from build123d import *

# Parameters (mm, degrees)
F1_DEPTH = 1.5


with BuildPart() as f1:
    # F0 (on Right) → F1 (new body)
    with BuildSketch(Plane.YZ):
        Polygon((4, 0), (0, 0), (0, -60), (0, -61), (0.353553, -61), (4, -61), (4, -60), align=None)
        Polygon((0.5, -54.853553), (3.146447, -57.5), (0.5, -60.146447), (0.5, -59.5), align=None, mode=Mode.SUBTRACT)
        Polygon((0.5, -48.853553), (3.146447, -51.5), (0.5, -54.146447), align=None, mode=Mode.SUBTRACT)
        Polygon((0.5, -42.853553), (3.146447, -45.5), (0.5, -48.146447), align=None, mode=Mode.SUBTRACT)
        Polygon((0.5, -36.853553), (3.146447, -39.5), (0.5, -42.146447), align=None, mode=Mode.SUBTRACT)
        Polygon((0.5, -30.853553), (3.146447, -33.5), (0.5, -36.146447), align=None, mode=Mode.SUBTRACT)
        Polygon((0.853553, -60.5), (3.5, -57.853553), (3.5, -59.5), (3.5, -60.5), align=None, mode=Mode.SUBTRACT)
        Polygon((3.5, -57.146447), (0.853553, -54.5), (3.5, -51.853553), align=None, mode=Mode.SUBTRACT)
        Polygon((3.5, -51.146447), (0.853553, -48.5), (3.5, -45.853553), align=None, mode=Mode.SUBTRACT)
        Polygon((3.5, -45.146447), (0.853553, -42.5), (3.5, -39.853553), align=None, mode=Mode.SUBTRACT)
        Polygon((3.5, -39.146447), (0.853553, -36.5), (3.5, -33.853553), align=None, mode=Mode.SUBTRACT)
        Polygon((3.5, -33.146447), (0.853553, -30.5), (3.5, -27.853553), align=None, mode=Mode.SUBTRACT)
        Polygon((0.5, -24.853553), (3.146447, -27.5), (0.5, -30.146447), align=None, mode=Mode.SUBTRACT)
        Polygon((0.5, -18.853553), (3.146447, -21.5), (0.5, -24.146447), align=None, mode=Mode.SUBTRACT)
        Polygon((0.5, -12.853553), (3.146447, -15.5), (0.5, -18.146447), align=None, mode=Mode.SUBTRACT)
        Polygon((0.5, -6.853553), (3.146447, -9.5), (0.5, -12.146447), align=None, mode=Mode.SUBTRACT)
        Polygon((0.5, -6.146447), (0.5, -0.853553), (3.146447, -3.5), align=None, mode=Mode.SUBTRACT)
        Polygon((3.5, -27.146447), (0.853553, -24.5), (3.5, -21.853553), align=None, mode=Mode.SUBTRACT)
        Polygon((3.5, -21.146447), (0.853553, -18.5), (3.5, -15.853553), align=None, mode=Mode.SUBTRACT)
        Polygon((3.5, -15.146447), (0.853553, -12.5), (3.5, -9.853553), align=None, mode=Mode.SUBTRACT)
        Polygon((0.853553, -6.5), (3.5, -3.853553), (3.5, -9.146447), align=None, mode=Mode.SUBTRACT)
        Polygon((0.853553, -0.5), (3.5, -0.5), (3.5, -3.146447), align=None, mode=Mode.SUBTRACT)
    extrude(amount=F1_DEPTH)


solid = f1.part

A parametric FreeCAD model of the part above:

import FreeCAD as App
import Part
import Sketcher
from FreeCAD import Vector

doc = App.newDocument("Part")
body = doc.addObject("PartDesign::Body", "Body")

# Sketch on YZ plane
sketch1 = body.newObject("Sketcher::SketchObject", "Sketch")
sketch1.AttachmentSupport = (doc.getObject("YZ_Plane"), [""])
sketch1.MapMode = "FlatFace"
sketch1.addGeometry(Part.LineSegment(Vector(4, 0, 0), Vector(0, 0, 0)), False)
sketch1.addGeometry(Part.LineSegment(Vector(0, 0, 0), Vector(0, -61, 0)), False)
sketch1.addGeometry(Part.LineSegment(Vector(0, -61, 0), Vector(4, -61, 0)), False)
sketch1.addGeometry(Part.LineSegment(Vector(4, -61, 0), Vector(4, 0, 0)), False)
sketch1.addGeometry(Part.LineSegment(Vector(0.5, -60.146447, 0), Vector(0.5, -54.853553, 0)), False)
sketch1.addGeometry(Part.LineSegment(Vector(0.5, -54.853553, 0), Vector(3.146447, -57.5, 0)), False)
sketch1.addGeometry(Part.LineSegment(Vector(3.146447, -57.5, 0), Vector(0.5, -60.146447, 0)), False)
sketch1.addGeometry(Part.LineSegment(Vector(0.5, -54.146447, 0), Vector(0.5, -48.853553, 0)), False)
sketch1.addGeometry(Part.LineSegment(Vector(0.5, -48.853553, 0), Vector(3.146447, -51.5, 0)), False)
sketch1.addGeometry(Part.LineSegment(Vector(3.146447, -51.5, 0), Vector(0.5, -54.146447, 0)), False)
sketch1.addGeometry(Part.LineSegment(Vector(0.5, -48.146447, 0), Vector(0.5, -42.853553, 0)), False)
sketch1.addGeometry(Part.LineSegment(Vector(0.5, -42.853553, 0), Vector(3.146447, -45.5, 0)), False)
sketch1.addGeometry(Part.LineSegment(Vector(3.146447, -45.5, 0), Vector(0.5, -48.146447, 0)), False)
sketch1.addGeometry(Part.LineSegment(Vector(0.5, -42.146447, 0), Vector(0.5, -36.853553, 0)), False)
sketch1.addGeometry(Part.LineSegment(Vector(0.5, -36.853553, 0), Vector(3.146447, -39.5, 0)), False)
sketch1.addGeometry(Part.LineSegment(Vector(3.146447, -39.5, 0), Vector(0.5, -42.146447, 0)), False)
sketch1.addGeometry(Part.LineSegment(Vector(0.5, -36.146447, 0), Vector(0.5, -30.853553, 0)), False)
sketch1.addGeometry(Part.LineSegment(Vector(0.5, -30.853553, 0), Vector(3.146447, -33.5, 0)), False)
sketch1.addGeometry(Part.LineSegment(Vector(3.146447, -33.5, 0), Vector(0.5, -36.146447, 0)), False)
sketch1.addGeometry(Part.LineSegment(Vector(3.5, -60.5, 0), Vector(0.853553, -60.5, 0)), False)
sketch1.addGeometry(Part.LineSegment(Vector(0.853553, -60.5, 0), Vector(3.5, -57.853553, 0)), False)
sketch1.addGeometry(Part.LineSegment(Vector(3.5, -57.853553, 0), Vector(3.5, -60.5, 0)), False)
sketch1.addGeometry(Part.LineSegment(Vector(3.5, -51.853553, 0), Vector(3.5, -57.146447, 0)), False)
sketch1.addGeometry(Part.LineSegment(Vector(3.5, -57.146447, 0), Vector(0.853553, -54.5, 0)), False)
sketch1.addGeometry(Part.LineSegment(Vector(0.853553, -54.5, 0), Vector(3.5, -51.853553, 0)), False)
sketch1.addGeometry(Part.LineSegment(Vector(3.5, -45.853553, 0), Vector(3.5, -51.146447, 0)), False)
sketch1.addGeometry(Part.LineSegment(Vector(3.5, -51.146447, 0), Vector(0.853553, -48.5, 0)), False)
sketch1.addGeometry(Part.LineSegment(Vector(0.853553, -48.5, 0), Vector(3.5, -45.853553, 0)), False)
sketch1.addGeometry(Part.LineSegment(Vector(3.5, -39.853553, 0), Vector(3.5, -45.146447, 0)), False)
sketch1.addGeometry(Part.LineSegment(Vector(3.5, -45.146447, 0), Vector(0.853553, -42.5, 0)), False)
sketch1.addGeometry(Part.LineSegment(Vector(0.853553, -42.5, 0), Vector(3.5, -39.853553, 0)), False)
sketch1.addGeometry(Part.LineSegment(Vector(3.5, -33.853553, 0), Vector(3.5, -39.146447, 0)), False)
sketch1.addGeometry(Part.LineSegment(Vector(3.5, -39.146447, 0), Vector(0.853553, -36.5, 0)), False)
sketch1.addGeometry(Part.LineSegment(Vector(0.853553, -36.5, 0), Vector(3.5, -33.853553, 0)), False)
sketch1.addGeometry(Part.LineSegment(Vector(0.5, -30.146447, 0), Vector(0.5, -24.853553, 0)), False)
sketch1.addGeometry(Part.LineSegment(Vector(0.5, -24.853553, 0), Vector(3.146447, -27.5, 0)), False)
sketch1.addGeometry(Part.LineSegment(Vector(3.146447, -27.5, 0), Vector(0.5, -30.146447, 0)), False)
sketch1.addGeometry(Part.LineSegment(Vector(0.5, -24.146447, 0), Vector(0.5, -18.853553, 0)), False)
sketch1.addGeometry(Part.LineSegment(Vector(0.5, -18.853553, 0), Vector(3.146447, -21.5, 0)), False)
sketch1.addGeometry(Part.LineSegment(Vector(3.146447, -21.5, 0), Vector(0.5, -24.146447, 0)), False)
sketch1.addGeometry(Part.LineSegment(Vector(0.5, -18.146447, 0), Vector(0.5, -12.853553, 0)), False)
sketch1.addGeometry(Part.LineSegment(Vector(0.5, -12.853553, 0), Vector(3.146447, -15.5, 0)), False)
sketch1.addGeometry(Part.LineSegment(Vector(3.146447, -15.5, 0), Vector(0.5, -18.146447, 0)), False)
sketch1.addGeometry(Part.LineSegment(Vector(0.5, -12.146447, 0), Vector(0.5, -6.853553, 0)), False)
sketch1.addGeometry(Part.LineSegment(Vector(0.5, -6.853553, 0), Vector(3.146447, -9.5, 0)), False)
sketch1.addGeometry(Part.LineSegment(Vector(3.146447, -9.5, 0), Vector(0.5, -12.146447, 0)), False)
sketch1.addGeometry(Part.LineSegment(Vector(3.146447, -3.5, 0), Vector(0.5, -6.146447, 0)), False)
sketch1.addGeometry(Part.LineSegment(Vector(0.5, -6.146447, 0), Vector(0.5, -0.853553, 0)), False)
sketch1.addGeometry(Part.LineSegment(Vector(0.5, -0.853553, 0), Vector(3.146447, -3.5, 0)), False)
sketch1.addGeometry(Part.LineSegment(Vector(3.5, -27.853553, 0), Vector(3.5, -33.146447, 0)), False)
sketch1.addGeometry(Part.LineSegment(Vector(3.5, -33.146447, 0), Vector(0.853553, -30.5, 0)), False)
sketch1.addGeometry(Part.LineSegment(Vector(0.853553, -30.5, 0), Vector(3.5, -27.853553, 0)), False)
sketch1.addGeometry(Part.LineSegment(Vector(3.5, -21.853553, 0), Vector(3.5, -27.146447, 0)), False)
sketch1.addGeometry(Part.LineSegment(Vector(3.5, -27.146447, 0), Vector(0.853553, -24.5, 0)), False)
sketch1.addGeometry(Part.LineSegment(Vector(0.853553, -24.5, 0), Vector(3.5, -21.853553, 0)), False)
sketch1.addGeometry(Part.LineSegment(Vector(3.5, -15.853553, 0), Vector(3.5, -21.146447, 0)), False)
sketch1.addGeometry(Part.LineSegment(Vector(3.5, -21.146447, 0), Vector(0.853553, -18.5, 0)), False)
sketch1.addGeometry(Part.LineSegment(Vector(0.853553, -18.5, 0), Vector(3.5, -15.853553, 0)), False)
sketch1.addGeometry(Part.LineSegment(Vector(3.5, -9.853553, 0), Vector(3.5, -15.146447, 0)), False)
sketch1.addGeometry(Part.LineSegment(Vector(3.5, -15.146447, 0), Vector(0.853553, -12.5, 0)), False)
sketch1.addGeometry(Part.LineSegment(Vector(0.853553, -12.5, 0), Vector(3.5, -9.853553, 0)), False)
sketch1.addGeometry(Part.LineSegment(Vector(3.5, -9.146447, 0), Vector(0.853553, -6.5, 0)), False)
sketch1.addGeometry(Part.LineSegment(Vector(0.853553, -6.5, 0), Vector(3.5, -3.853553, 0)), False)
sketch1.addGeometry(Part.LineSegment(Vector(3.5, -3.853553, 0), Vector(3.5, -9.146447, 0)), False)
sketch1.addGeometry(Part.LineSegment(Vector(3.5, -3.146447, 0), Vector(0.853553, -0.5, 0)), False)
sketch1.addGeometry(Part.LineSegment(Vector(0.853553, -0.5, 0), Vector(3.5, -0.5, 0)), False)
sketch1.addGeometry(Part.LineSegment(Vector(3.5, -0.5, 0), Vector(3.5, -3.146447, 0)), False)
sketch1.addConstraint(Sketcher.Constraint("Coincident", 0, 2, 1, 1))
sketch1.addConstraint(Sketcher.Constraint("Coincident", 1, 2, 2, 1))
sketch1.addConstraint(Sketcher.Constraint("Coincident", 2, 2, 3, 1))
sketch1.addConstraint(Sketcher.Constraint("Coincident", 3, 2, 0, 1))
sketch1.addConstraint(Sketcher.Constraint("Coincident", 4, 2, 5, 1))
sketch1.addConstraint(Sketcher.Constraint("Coincident", 5, 2, 6, 1))
sketch1.addConstraint(Sketcher.Constraint("Coincident", 6, 2, 4, 1))
sketch1.addConstraint(Sketcher.Constraint("Coincident", 7, 2, 8, 1))
sketch1.addConstraint(Sketcher.Constraint("Coincident", 8, 2, 9, 1))
sketch1.addConstraint(Sketcher.Constraint("Coincident", 9, 2, 7, 1))
sketch1.addConstraint(Sketcher.Constraint("Coincident", 10, 2, 11, 1))
sketch1.addConstraint(Sketcher.Constraint("Coincident", 11, 2, 12, 1))
sketch1.addConstraint(Sketcher.Constraint("Coincident", 12, 2, 10, 1))
sketch1.addConstraint(Sketcher.Constraint("Coincident", 13, 2, 14, 1))
sketch1.addConstraint(Sketcher.Constraint("Coincident", 14, 2, 15, 1))
sketch1.addConstraint(Sketcher.Constraint("Coincident", 15, 2, 13, 1))
sketch1.addConstraint(Sketcher.Constraint("Coincident", 16, 2, 17, 1))
sketch1.addConstraint(Sketcher.Constraint("Coincident", 17, 2, 18, 1))
sketch1.addConstraint(Sketcher.Constraint("Coincident", 18, 2, 16, 1))
sketch1.addConstraint(Sketcher.Constraint("Coincident", 19, 2, 20, 1))
sketch1.addConstraint(Sketcher.Constraint("Coincident", 20, 2, 21, 1))
sketch1.addConstraint(Sketcher.Constraint("Coincident", 21, 2, 19, 1))
sketch1.addConstraint(Sketcher.Constraint("Coincident", 22, 2, 23, 1))
sketch1.addConstraint(Sketcher.Constraint("Coincident", 23, 2, 24, 1))
sketch1.addConstraint(Sketcher.Constraint("Coincident", 24, 2, 22, 1))
sketch1.addConstraint(Sketcher.Constraint("Coincident", 25, 2, 26, 1))
sketch1.addConstraint(Sketcher.Constraint("Coincident", 26, 2, 27, 1))
sketch1.addConstraint(Sketcher.Constraint("Coincident", 27, 2, 25, 1))
sketch1.addConstraint(Sketcher.Constraint("Coincident", 28, 2, 29, 1))
sketch1.addConstraint(Sketcher.Constraint("Coincident", 29, 2, 30, 1))
sketch1.addConstraint(Sketcher.Constraint("Coincident", 30, 2, 28, 1))
sketch1.addConstraint(Sketcher.Constraint("Coincident", 31, 2, 32, 1))
sketch1.addConstraint(Sketcher.Constraint("Coincident", 32, 2, 33, 1))
sketch1.addConstraint(Sketcher.Constraint("Coincident", 33, 2, 31, 1))
sketch1.addConstraint(Sketcher.Constraint("Coincident", 34, 2, 35, 1))
sketch1.addConstraint(Sketcher.Constraint("Coincident", 35, 2, 36, 1))
sketch1.addConstraint(Sketcher.Constraint("Coincident", 36, 2, 34, 1))
sketch1.addConstraint(Sketcher.Constraint("Coincident", 37, 2, 38, 1))
sketch1.addConstraint(Sketcher.Constraint("Coincident", 38, 2, 39, 1))
sketch1.addConstraint(Sketcher.Constraint("Coincident", 39, 2, 37, 1))
sketch1.addConstraint(Sketcher.Constraint("Coincident", 40, 2, 41, 1))
sketch1.addConstraint(Sketcher.Constraint("Coincident", 41, 2, 42, 1))
sketch1.addConstraint(Sketcher.Constraint("Coincident", 42, 2, 40, 1))
sketch1.addConstraint(Sketcher.Constraint("Coincident", 43, 2, 44, 1))
sketch1.addConstraint(Sketcher.Constraint("Coincident", 44, 2, 45, 1))
sketch1.addConstraint(Sketcher.Constraint("Coincident", 45, 2, 43, 1))
sketch1.addConstraint(Sketcher.Constraint("Coincident", 46, 2, 47, 1))
sketch1.addConstraint(Sketcher.Constraint("Coincident", 47, 2, 48, 1))
sketch1.addConstraint(Sketcher.Constraint("Coincident", 48, 2, 46, 1))
sketch1.addConstraint(Sketcher.Constraint("Coincident", 49, 2, 50, 1))
sketch1.addConstraint(Sketcher.Constraint("Coincident", 50, 2, 51, 1))
sketch1.addConstraint(Sketcher.Constraint("Coincident", 51, 2, 49, 1))
sketch1.addConstraint(Sketcher.Constraint("Coincident", 52, 2, 53, 1))
sketch1.addConstraint(Sketcher.Constraint("Coincident", 53, 2, 54, 1))
sketch1.addConstraint(Sketcher.Constraint("Coincident", 54, 2, 52, 1))
sketch1.addConstraint(Sketcher.Constraint("Coincident", 55, 2, 56, 1))
sketch1.addConstraint(Sketcher.Constraint("Coincident", 56, 2, 57, 1))
sketch1.addConstraint(Sketcher.Constraint("Coincident", 57, 2, 55, 1))
sketch1.addConstraint(Sketcher.Constraint("Coincident", 58, 2, 59, 1))
sketch1.addConstraint(Sketcher.Constraint("Coincident", 59, 2, 60, 1))
sketch1.addConstraint(Sketcher.Constraint("Coincident", 60, 2, 58, 1))
sketch1.addConstraint(Sketcher.Constraint("Coincident", 61, 2, 62, 1))
sketch1.addConstraint(Sketcher.Constraint("Coincident", 62, 2, 63, 1))
sketch1.addConstraint(Sketcher.Constraint("Coincident", 63, 2, 61, 1))
sketch1.addConstraint(Sketcher.Constraint("Coincident", 64, 2, 65, 1))
sketch1.addConstraint(Sketcher.Constraint("Coincident", 65, 2, 66, 1))
sketch1.addConstraint(Sketcher.Constraint("Coincident", 66, 2, 64, 1))
sketch1.addConstraint(Sketcher.Constraint("Horizontal", 0))
sketch1.addConstraint(Sketcher.Constraint("Vertical", 1))
sketch1.addConstraint(Sketcher.Constraint("Horizontal", 2))
sketch1.addConstraint(Sketcher.Constraint("Vertical", 3))
sketch1.addConstraint(Sketcher.Constraint("Vertical", 4))
sketch1.addConstraint(Sketcher.Constraint("Vertical", 7))
sketch1.addConstraint(Sketcher.Constraint("Vertical", 10))
sketch1.addConstraint(Sketcher.Constraint("Vertical", 13))
sketch1.addConstraint(Sketcher.Constraint("Vertical", 16))
sketch1.addConstraint(Sketcher.Constraint("Horizontal", 19))
sketch1.addConstraint(Sketcher.Constraint("Vertical", 21))
sketch1.addConstraint(Sketcher.Constraint("Vertical", 22))
sketch1.addConstraint(Sketcher.Constraint("Vertical", 25))
sketch1.addConstraint(Sketcher.Constraint("Vertical", 28))
sketch1.addConstraint(Sketcher.Constraint("Vertical", 31))
sketch1.addConstraint(Sketcher.Constraint("Vertical", 34))
sketch1.addConstraint(Sketcher.Constraint("Vertical", 37))
sketch1.addConstraint(Sketcher.Constraint("Vertical", 40))
sketch1.addConstraint(Sketcher.Constraint("Vertical", 43))
sketch1.addConstraint(Sketcher.Constraint("Vertical", 47))
sketch1.addConstraint(Sketcher.Constraint("Vertical", 49))
sketch1.addConstraint(Sketcher.Constraint("Vertical", 52))
sketch1.addConstraint(Sketcher.Constraint("Vertical", 55))
sketch1.addConstraint(Sketcher.Constraint("Vertical", 58))
sketch1.addConstraint(Sketcher.Constraint("Vertical", 63))
sketch1.addConstraint(Sketcher.Constraint("Horizontal", 65))
sketch1.addConstraint(Sketcher.Constraint("Vertical", 66))
sketch1.addConstraint(Sketcher.Constraint("Coincident", 0, 2, -1, 1))
sketch1.addConstraint(Sketcher.Constraint("Perpendicular", 5, 6))
sketch1.addConstraint(Sketcher.Constraint("Perpendicular", 6, 8))
sketch1.addConstraint(Sketcher.Constraint("Perpendicular", 8, 9))
sketch1.addConstraint(Sketcher.Constraint("Perpendicular", 9, 11))
sketch1.addConstraint(Sketcher.Constraint("Perpendicular", 11, 12))
sketch1.addConstraint(Sketcher.Constraint("Perpendicular", 12, 14))
sketch1.addConstraint(Sketcher.Constraint("Perpendicular", 14, 15))
sketch1.addConstraint(Sketcher.Constraint("Perpendicular", 15, 17))
sketch1.addConstraint(Sketcher.Constraint("Perpendicular", 17, 18))
sketch1.addConstraint(Sketcher.Constraint("Parallel", 18, 20))
sketch1.addConstraint(Sketcher.Constraint("Perpendicular", 20, 23))
sketch1.addConstraint(Sketcher.Constraint("Perpendicular", 23, 24))
sketch1.addConstraint(Sketcher.Constraint("Perpendicular", 24, 26))
sketch1.addConstraint(Sketcher.Constraint("Perpendicular", 26, 27))
sketch1.addConstraint(Sketcher.Constraint("Perpendicular", 27, 29))
sketch1.addConstraint(Sketcher.Constraint("Perpendicular", 29, 30))
sketch1.addConstraint(Sketcher.Constraint("Perpendicular", 30, 32))
sketch1.addConstraint(Sketcher.Constraint("Perpendicular", 32, 33))
sketch1.addConstraint(Sketcher.Constraint("Perpendicular", 33, 35))
sketch1.addConstraint(Sketcher.Constraint("Perpendicular", 35, 36))
sketch1.addConstraint(Sketcher.Constraint("Perpendicular", 36, 38))
sketch1.addConstraint(Sketcher.Constraint("Perpendicular", 38, 39))
sketch1.addConstraint(Sketcher.Constraint("Perpendicular", 39, 41))
sketch1.addConstraint(Sketcher.Constraint("Perpendicular", 41, 42))
sketch1.addConstraint(Sketcher.Constraint("Perpendicular", 42, 44))
sketch1.addConstraint(Sketcher.Constraint("Perpendicular", 44, 45))
sketch1.addConstraint(Sketcher.Constraint("Parallel", 45, 46))
sketch1.addConstraint(Sketcher.Constraint("Perpendicular", 46, 48))
sketch1.addConstraint(Sketcher.Constraint("Parallel", 48, 50))
sketch1.addConstraint(Sketcher.Constraint("Perpendicular", 50, 51))
sketch1.addConstraint(Sketcher.Constraint("Perpendicular", 51, 53))
sketch1.addConstraint(Sketcher.Constraint("Perpendicular", 53, 54))
sketch1.addConstraint(Sketcher.Constraint("Perpendicular", 54, 56))
sketch1.addConstraint(Sketcher.Constraint("Perpendicular", 56, 57))
sketch1.addConstraint(Sketcher.Constraint("Perpendicular", 57, 59))
sketch1.addConstraint(Sketcher.Constraint("Perpendicular", 59, 60))
sketch1.addConstraint(Sketcher.Constraint("Perpendicular", 60, 61))
sketch1.addConstraint(Sketcher.Constraint("Perpendicular", 61, 62))
sketch1.addConstraint(Sketcher.Constraint("Perpendicular", 62, 64))
sketch1.addConstraint(Sketcher.Constraint("Vertical", 6, 2, 7, 2))
sketch1.addConstraint(Sketcher.Constraint("Vertical", 5, 2, 8, 2))
sketch1.addConstraint(Sketcher.Constraint("Vertical", 9, 2, 10, 2))
sketch1.addConstraint(Sketcher.Constraint("Vertical", 8, 2, 11, 2))
sketch1.addConstraint(Sketcher.Constraint("Vertical", 12, 2, 13, 2))
sketch1.addConstraint(Sketcher.Constraint("Vertical", 11, 2, 14, 2))
sketch1.addConstraint(Sketcher.Constraint("Vertical", 15, 2, 16, 2))
sketch1.addConstraint(Sketcher.Constraint("Vertical", 14, 2, 17, 2))
sketch1.addConstraint(Sketcher.Constraint("Vertical", 21, 2, 22, 2))
sketch1.addConstraint(Sketcher.Constraint("Vertical", 19, 2, 23, 2))
sketch1.addConstraint(Sketcher.Constraint("Vertical", 24, 2, 25, 2))
sketch1.addConstraint(Sketcher.Constraint("Vertical", 23, 2, 26, 2))
sketch1.addConstraint(Sketcher.Constraint("Vertical", 27, 2, 28, 2))
sketch1.addConstraint(Sketcher.Constraint("Vertical", 26, 2, 29, 2))
sketch1.addConstraint(Sketcher.Constraint("Vertical", 30, 2, 31, 2))
sketch1.addConstraint(Sketcher.Constraint("Vertical", 29, 2, 32, 2))
sketch1.addConstraint(Sketcher.Constraint("Vertical", 18, 2, 34, 2))
sketch1.addConstraint(Sketcher.Constraint("Vertical", 17, 2, 35, 2))
sketch1.addConstraint(Sketcher.Constraint("Vertical", 36, 2, 37, 2))
sketch1.addConstraint(Sketcher.Constraint("Vertical", 35, 2, 38, 2))
sketch1.addConstraint(Sketcher.Constraint("Vertical", 39, 2, 40, 2))
sketch1.addConstraint(Sketcher.Constraint("Vertical", 38, 2, 41, 2))
sketch1.addConstraint(Sketcher.Constraint("Vertical", 42, 2, 43, 2))
sketch1.addConstraint(Sketcher.Constraint("Vertical", 41, 2, 44, 2))
sketch1.addConstraint(Sketcher.Constraint("Vertical", 45, 2, 46, 2))
sketch1.addConstraint(Sketcher.Constraint("Vertical", 44, 2, 48, 2))
sketch1.addConstraint(Sketcher.Constraint("Vertical", 33, 2, 49, 2))
sketch1.addConstraint(Sketcher.Constraint("Vertical", 32, 2, 50, 2))
sketch1.addConstraint(Sketcher.Constraint("Vertical", 51, 2, 52, 2))
sketch1.addConstraint(Sketcher.Constraint("Vertical", 50, 2, 53, 2))
sketch1.addConstraint(Sketcher.Constraint("Vertical", 54, 2, 55, 2))
sketch1.addConstraint(Sketcher.Constraint("Vertical", 53, 2, 56, 2))
sketch1.addConstraint(Sketcher.Constraint("Vertical", 57, 2, 58, 2))
sketch1.addConstraint(Sketcher.Constraint("Vertical", 56, 2, 59, 2))
sketch1.addConstraint(Sketcher.Constraint("Vertical", 59, 2, 61, 2))
sketch1.addConstraint(Sketcher.Constraint("Vertical", 60, 2, 62, 2))
sketch1.addConstraint(Sketcher.Constraint("Vertical", 61, 2, 64, 2))
sketch1.addConstraint(Sketcher.Constraint("Vertical", 63, 2, 65, 2))
sketch1.addConstraint(Sketcher.Constraint("Equal", 65, 21))
sketch1.addConstraint(Sketcher.Constraint("Equal", 16, 22))
sketch1.addConstraint(Sketcher.Constraint("DistanceX", 0, 2, 0, 1, 4.0))
sketch1.addConstraint(Sketcher.Constraint("DistanceY", 1, 2, 1, 1, 61.0))
sketch1.addConstraint(Sketcher.Constraint("DistanceX", -1, 1, 4, 2, 0.5))
sketch1.addConstraint(Sketcher.Constraint("DistanceY", 5, 2, -1, 1, 57.5))
sketch1.addConstraint(Sketcher.Constraint("DistanceY", 8, 2, -1, 1, 51.5))
sketch1.addConstraint(Sketcher.Constraint("DistanceY", 11, 2, -1, 1, 45.5))
sketch1.addConstraint(Sketcher.Constraint("DistanceY", 14, 2, -1, 1, 39.5))
sketch1.addConstraint(Sketcher.Constraint("DistanceY", 17, 2, -1, 1, 33.5))
sketch1.addConstraint(Sketcher.Constraint("DistanceY", 19, 2, -1, 1, 60.5))
sketch1.addConstraint(Sketcher.Constraint("DistanceX", -1, 1, 20, 2, 3.5))
sketch1.addConstraint(Sketcher.Constraint("DistanceY", 23, 2, -1, 1, 54.5))
sketch1.addConstraint(Sketcher.Constraint("DistanceY", 26, 2, -1, 1, 48.5))
sketch1.addConstraint(Sketcher.Constraint("DistanceY", 29, 2, -1, 1, 42.5))
sketch1.addConstraint(Sketcher.Constraint("DistanceY", 32, 2, -1, 1, 36.5))
sketch1.addConstraint(Sketcher.Constraint("DistanceY", 35, 2, -1, 1, 27.5))
sketch1.addConstraint(Sketcher.Constraint("DistanceY", 38, 2, -1, 1, 21.5))
sketch1.addConstraint(Sketcher.Constraint("DistanceY", 41, 2, -1, 1, 15.5))
sketch1.addConstraint(Sketcher.Constraint("DistanceY", 44, 2, -1, 1, 9.5))
sketch1.addConstraint(Sketcher.Constraint("DistanceY", 48, 2, -1, 1, 3.5))
sketch1.addConstraint(Sketcher.Constraint("DistanceY", 50, 2, -1, 1, 30.5))
sketch1.addConstraint(Sketcher.Constraint("DistanceY", 53, 2, -1, 1, 24.5))
sketch1.addConstraint(Sketcher.Constraint("DistanceY", 56, 2, -1, 1, 18.5))
sketch1.addConstraint(Sketcher.Constraint("DistanceY", 59, 2, -1, 1, 12.5))
sketch1.addConstraint(Sketcher.Constraint("DistanceY", 61, 2, -1, 1, 6.5))
sketch1.addConstraint(Sketcher.Constraint("DistanceY", 64, 2, -1, 1, 0.5))
sketch1.addConstraint(Sketcher.Constraint("Distance", 5, 3.742641))
pad1 = body.newObject("PartDesign::Pad", "Pad")
pad1.Profile = sketch1
pad1.Length = 1.5

doc.recompute()
